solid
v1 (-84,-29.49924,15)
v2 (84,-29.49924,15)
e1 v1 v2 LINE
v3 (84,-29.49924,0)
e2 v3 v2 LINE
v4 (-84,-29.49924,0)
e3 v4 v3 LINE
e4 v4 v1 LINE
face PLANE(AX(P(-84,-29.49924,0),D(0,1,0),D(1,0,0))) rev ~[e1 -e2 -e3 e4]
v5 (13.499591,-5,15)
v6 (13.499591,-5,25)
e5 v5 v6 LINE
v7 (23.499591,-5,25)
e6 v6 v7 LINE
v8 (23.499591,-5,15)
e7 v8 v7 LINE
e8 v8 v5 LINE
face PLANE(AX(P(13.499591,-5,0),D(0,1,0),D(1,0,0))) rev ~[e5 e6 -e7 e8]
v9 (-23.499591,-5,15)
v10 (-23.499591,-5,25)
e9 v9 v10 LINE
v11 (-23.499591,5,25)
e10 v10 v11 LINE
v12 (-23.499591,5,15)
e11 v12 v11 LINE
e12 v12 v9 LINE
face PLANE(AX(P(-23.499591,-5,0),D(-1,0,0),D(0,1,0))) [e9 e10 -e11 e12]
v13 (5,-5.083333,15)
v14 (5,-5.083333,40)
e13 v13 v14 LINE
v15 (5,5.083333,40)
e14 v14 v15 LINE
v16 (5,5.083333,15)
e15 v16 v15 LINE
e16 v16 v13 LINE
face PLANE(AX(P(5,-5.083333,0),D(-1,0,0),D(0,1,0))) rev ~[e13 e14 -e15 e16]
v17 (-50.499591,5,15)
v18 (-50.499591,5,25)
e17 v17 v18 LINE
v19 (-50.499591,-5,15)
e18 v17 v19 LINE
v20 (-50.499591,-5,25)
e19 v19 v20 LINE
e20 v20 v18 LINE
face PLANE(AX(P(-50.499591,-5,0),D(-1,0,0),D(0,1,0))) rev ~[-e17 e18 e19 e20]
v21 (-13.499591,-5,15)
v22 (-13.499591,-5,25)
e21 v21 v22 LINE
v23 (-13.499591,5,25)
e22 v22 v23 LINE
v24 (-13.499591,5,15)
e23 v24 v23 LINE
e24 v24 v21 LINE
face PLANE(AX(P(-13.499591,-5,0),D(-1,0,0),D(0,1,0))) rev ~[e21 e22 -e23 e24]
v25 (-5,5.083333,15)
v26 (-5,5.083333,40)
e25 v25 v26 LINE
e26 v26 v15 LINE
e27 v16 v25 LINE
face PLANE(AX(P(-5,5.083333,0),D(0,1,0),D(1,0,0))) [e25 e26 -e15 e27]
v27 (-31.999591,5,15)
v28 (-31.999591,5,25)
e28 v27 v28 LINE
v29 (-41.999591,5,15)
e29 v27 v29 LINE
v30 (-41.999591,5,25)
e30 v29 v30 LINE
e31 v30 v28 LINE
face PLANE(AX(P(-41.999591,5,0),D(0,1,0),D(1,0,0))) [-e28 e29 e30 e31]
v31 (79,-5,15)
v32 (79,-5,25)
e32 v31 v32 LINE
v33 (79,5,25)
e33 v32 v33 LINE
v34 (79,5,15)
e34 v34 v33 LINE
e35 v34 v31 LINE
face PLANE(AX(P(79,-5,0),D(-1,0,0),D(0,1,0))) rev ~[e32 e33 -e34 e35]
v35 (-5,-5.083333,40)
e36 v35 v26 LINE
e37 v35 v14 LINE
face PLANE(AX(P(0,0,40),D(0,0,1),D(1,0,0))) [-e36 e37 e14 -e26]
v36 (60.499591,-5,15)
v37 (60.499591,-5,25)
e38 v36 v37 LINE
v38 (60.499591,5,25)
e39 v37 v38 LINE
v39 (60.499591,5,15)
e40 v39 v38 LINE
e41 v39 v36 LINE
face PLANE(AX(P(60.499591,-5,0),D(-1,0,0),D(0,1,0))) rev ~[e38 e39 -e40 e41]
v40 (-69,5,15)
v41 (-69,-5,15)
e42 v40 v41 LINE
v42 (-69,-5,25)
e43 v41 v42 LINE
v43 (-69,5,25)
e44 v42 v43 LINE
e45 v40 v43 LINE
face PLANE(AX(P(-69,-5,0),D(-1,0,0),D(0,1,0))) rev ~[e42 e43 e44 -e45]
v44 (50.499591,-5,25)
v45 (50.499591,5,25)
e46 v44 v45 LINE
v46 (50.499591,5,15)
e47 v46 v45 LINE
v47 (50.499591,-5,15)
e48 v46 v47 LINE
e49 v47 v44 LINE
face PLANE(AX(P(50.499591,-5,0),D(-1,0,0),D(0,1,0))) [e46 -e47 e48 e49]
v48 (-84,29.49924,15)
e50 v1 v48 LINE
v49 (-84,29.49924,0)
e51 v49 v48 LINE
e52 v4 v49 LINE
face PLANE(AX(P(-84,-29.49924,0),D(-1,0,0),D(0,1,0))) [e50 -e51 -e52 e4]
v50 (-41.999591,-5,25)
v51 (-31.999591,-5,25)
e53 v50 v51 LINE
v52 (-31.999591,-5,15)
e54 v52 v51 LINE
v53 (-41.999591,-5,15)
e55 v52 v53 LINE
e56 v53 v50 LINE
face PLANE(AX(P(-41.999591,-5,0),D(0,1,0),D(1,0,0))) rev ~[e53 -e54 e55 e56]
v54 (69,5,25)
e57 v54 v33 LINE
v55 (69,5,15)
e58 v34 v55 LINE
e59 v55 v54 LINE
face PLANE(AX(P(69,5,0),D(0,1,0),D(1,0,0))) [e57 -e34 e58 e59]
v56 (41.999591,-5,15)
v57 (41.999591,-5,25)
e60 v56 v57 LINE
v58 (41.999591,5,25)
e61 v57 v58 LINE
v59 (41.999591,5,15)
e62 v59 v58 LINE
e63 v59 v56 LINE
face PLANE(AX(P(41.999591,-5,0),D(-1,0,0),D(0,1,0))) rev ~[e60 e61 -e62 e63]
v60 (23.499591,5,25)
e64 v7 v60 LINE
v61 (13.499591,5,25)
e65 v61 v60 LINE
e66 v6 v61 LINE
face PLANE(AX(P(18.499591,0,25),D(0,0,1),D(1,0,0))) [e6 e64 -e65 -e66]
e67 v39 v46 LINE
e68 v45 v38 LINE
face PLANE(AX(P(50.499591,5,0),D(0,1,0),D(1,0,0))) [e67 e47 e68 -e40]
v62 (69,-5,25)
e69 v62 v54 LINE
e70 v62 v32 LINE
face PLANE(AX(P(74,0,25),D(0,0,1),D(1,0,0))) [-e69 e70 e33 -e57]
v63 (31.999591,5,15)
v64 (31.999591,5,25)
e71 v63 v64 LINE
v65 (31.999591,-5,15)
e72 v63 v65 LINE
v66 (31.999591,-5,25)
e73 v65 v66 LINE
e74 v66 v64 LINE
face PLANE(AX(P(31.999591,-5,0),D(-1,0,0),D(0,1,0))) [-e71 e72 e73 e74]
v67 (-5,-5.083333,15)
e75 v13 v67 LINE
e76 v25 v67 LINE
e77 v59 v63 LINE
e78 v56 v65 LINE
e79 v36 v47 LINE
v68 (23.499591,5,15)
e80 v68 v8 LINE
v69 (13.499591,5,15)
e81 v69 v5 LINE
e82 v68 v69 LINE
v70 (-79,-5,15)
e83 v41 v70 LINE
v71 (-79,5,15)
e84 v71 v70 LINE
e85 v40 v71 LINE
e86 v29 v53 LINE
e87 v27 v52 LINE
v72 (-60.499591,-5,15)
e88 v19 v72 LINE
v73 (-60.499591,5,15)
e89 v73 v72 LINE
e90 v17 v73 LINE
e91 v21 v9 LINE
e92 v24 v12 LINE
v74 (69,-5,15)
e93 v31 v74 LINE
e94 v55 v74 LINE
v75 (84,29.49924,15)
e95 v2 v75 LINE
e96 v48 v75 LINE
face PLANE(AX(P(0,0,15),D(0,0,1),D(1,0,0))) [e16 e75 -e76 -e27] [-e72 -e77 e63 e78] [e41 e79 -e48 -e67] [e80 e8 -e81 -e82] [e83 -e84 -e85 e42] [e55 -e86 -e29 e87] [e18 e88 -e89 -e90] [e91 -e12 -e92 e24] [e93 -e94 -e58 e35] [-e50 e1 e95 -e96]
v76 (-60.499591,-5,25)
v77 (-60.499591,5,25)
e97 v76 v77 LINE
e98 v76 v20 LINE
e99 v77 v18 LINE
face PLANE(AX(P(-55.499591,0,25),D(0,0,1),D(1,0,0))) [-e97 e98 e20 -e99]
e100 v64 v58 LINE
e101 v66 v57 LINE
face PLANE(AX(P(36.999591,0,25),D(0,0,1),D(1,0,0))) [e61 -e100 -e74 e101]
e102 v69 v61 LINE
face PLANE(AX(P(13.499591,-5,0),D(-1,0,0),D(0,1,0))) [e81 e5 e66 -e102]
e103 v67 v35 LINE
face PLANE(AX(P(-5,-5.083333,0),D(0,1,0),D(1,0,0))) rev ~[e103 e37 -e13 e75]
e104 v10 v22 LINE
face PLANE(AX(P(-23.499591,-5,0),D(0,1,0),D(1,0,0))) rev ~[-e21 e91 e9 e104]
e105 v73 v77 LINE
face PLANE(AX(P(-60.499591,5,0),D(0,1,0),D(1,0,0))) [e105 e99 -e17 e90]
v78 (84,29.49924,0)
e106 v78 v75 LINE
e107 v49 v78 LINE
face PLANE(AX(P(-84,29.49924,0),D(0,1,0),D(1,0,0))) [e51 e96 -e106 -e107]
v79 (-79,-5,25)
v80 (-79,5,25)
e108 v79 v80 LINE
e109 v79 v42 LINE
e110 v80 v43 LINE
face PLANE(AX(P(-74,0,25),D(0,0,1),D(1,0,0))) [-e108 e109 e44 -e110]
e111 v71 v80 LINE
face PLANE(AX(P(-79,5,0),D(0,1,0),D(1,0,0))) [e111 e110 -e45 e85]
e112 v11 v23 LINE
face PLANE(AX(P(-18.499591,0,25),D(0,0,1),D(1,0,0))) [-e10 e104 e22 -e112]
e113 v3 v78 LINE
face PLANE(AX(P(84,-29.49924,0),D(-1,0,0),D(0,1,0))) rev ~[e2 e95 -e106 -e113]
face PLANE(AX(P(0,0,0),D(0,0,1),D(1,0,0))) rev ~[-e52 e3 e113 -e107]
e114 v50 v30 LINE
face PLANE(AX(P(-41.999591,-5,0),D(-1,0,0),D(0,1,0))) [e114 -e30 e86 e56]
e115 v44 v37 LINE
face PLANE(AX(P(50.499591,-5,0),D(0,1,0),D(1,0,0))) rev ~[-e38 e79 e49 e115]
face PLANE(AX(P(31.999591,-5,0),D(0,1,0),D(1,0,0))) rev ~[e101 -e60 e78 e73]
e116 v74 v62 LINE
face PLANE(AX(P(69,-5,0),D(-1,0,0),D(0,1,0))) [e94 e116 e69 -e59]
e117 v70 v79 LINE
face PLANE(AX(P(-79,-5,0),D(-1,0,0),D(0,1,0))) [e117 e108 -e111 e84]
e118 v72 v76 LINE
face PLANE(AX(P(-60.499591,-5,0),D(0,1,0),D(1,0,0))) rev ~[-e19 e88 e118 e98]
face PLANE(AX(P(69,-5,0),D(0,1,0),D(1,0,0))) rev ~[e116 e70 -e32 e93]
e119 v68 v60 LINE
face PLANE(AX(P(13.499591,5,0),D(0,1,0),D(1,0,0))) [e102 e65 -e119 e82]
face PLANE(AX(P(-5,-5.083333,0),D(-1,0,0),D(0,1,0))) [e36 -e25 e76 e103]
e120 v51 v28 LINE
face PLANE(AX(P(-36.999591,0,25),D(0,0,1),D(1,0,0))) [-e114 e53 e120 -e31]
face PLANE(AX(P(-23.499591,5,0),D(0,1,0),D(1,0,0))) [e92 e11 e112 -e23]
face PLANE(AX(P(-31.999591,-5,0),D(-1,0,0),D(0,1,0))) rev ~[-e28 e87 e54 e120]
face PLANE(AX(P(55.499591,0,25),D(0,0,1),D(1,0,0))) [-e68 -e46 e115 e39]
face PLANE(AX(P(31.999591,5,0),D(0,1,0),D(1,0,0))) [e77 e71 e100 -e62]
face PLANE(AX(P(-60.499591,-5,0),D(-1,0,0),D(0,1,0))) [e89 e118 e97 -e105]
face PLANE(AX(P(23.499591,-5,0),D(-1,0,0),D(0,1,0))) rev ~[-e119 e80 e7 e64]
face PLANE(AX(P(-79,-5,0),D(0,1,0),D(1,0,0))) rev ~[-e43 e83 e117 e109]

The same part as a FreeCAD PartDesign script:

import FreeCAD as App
import Part
import Sketcher


def add_polygon(sketch, points):
    """Adds a closed chain of lines whose ends are joined by coincident constraints."""
    first, n = sketch.GeometryCount, len(points)
    for a, b in zip(points, points[1:] + points[:1]):
        sketch.addGeometry(Part.LineSegment(App.Vector(*a, 0), App.Vector(*b, 0)), False)
    for i in range(n):
        sketch.addConstraint(Sketcher.Constraint("Coincident", first + i, 2, first + (i + 1) % n, 1))

doc = App.newDocument("Part")
body = doc.addObject("PartDesign::Body", "Body")

# Sketch on XY plane
sketch1 = body.newObject("Sketcher::SketchObject", "Sketch")
sketch1.AttachmentSupport = (doc.getObject("XY_Plane"), [""])
sketch1.MapMode = "FlatFace"
add_polygon(sketch1, [(-84, 29), (-84, -29), (84, -29), (84, 29)])  # lines 0-3
sketch1.addConstraint([
    Sketcher.Constraint("Vertical", 0),
    Sketcher.Constraint("Horizontal", 1),
    Sketcher.Constraint("Vertical", 2),
    Sketcher.Constraint("Horizontal", 3),
    Sketcher.Constraint("Symmetric", 0, 2, 2, 2, -1, 1),
    Sketcher.Constraint("DistanceX", 1, 1, 1, 2, 168.0),
    Sketcher.Constraint("DistanceY", 0, 2, 0, 1, 58.99848),
])
pad1 = body.newObject("PartDesign::Pad", "Pad")
pad1.Profile = sketch1
pad1.Length = 15

# Sketch on XY plane
sketch2 = body.newObject("Sketcher::SketchObject", "Sketch001")
sketch2.AttachmentSupport = (doc.getObject("XY_Plane"), [""])
sketch2.MapMode = "FlatFace"
add_polygon(sketch2, [(-79, 5), (-79, -5), (-69, -5), (-69, 5)])  # lines 0-3
add_polygon(sketch2, [(-60, 5), (-60, -5), (-50, -5), (-50, 5)])  # lines 4-7
add_polygon(sketch2, [(-42, 5), (-42, -5), (-32, -5), (-32, 5)])  # lines 8-11
add_polygon(sketch2, [(-23, 5), (-23, -5), (-13, -5), (-13, 5)])  # lines 12-15
add_polygon(sketch2, [(13, 5), (13, -5), (23, -5), (23, 5)])  # lines 16-19
add_polygon(sketch2, [(32, 5), (32, -5), (42, -5), (42, 5)])  # lines 20-23
add_polygon(sketch2, [(50, 5), (50, -5), (60, -5), (60, 5)])  # lines 24-27
add_polygon(sketch2, [(69, 5), (69, -5), (79, -5), (79, 5)])  # lines 28-31
sketch2.addConstraint([
    Sketcher.Constraint("Vertical", 0),
    Sketcher.Constraint("Horizontal", 1),
    Sketcher.Constraint("Vertical", 2),
    Sketcher.Constraint("Horizontal", 3),
    Sketcher.Constraint("Vertical", 4),
    Sketcher.Constraint("Horizontal", 5),
    Sketcher.Constraint("Vertical", 6),
    Sketcher.Constraint("Horizontal", 7),
    Sketcher.Constraint("Vertical", 8),
    Sketcher.Constraint("Horizontal", 9),
    Sketcher.Constraint("Vertical", 10),
    Sketcher.Constraint("Horizontal", 11),
    Sketcher.Constraint("Vertical", 12),
    Sketcher.Constraint("Horizontal", 13),
    Sketcher.Constraint("Vertical", 14),
    Sketcher.Constraint("Horizontal", 15),
    Sketcher.Constraint("Vertical", 16),
    Sketcher.Constraint("Horizontal", 17),
    Sketcher.Constraint("Vertical", 18),
    Sketcher.Constraint("Horizontal", 19),
    Sketcher.Constraint("Vertical", 20),
    Sketcher.Constraint("Horizontal", 21),
    Sketcher.Constraint("Vertical", 22),
    Sketcher.Constraint("Horizontal", 23),
    Sketcher.Constraint("Vertical", 24),
    Sketcher.Constraint("Horizontal", 25),
    Sketcher.Constraint("Vertical", 26),
    Sketcher.Constraint("Horizontal", 27),
    Sketcher.Constraint("Vertical", 28),
    Sketcher.Constraint("Horizontal", 29),
    Sketcher.Constraint("Vertical", 30),
    Sketcher.Constraint("Horizontal", 31),
    Sketcher.Constraint("Symmetric", 14, 2, 16, 2, -1, 1),
    Sketcher.Constraint("Symmetric", 12, 2, 18, 2, -1, 1),
    Sketcher.Constraint("Symmetric", 10, 2, 20, 2, -1, 1),
    Sketcher.Constraint("Symmetric", 8, 2, 22, 2, -1, 1),
    Sketcher.Constraint("Symmetric", 6, 2, 24, 2, -1, 1),
    Sketcher.Constraint("Symmetric", 4, 2, 26, 2, -1, 1),
    Sketcher.Constraint("Symmetric", 2, 2, 28, 2, -1, 1),
    Sketcher.Constraint("Symmetric", 0, 2, 30, 2, -1, 1),
    Sketcher.Constraint("Horizontal", 1, 2, 4, 2),
    Sketcher.Constraint("Horizontal", 3, 2, 6, 2),
    Sketcher.Constraint("Horizontal", 5, 2, 8, 2),
    Sketcher.Constraint("Horizontal", 7, 2, 10, 2),
    Sketcher.Constraint("Horizontal", 9, 2, 12, 2),
    Sketcher.Constraint("Horizontal", 11, 2, 14, 2),
    Sketcher.Constraint("Horizontal", 13, 2, 16, 2),
    Sketcher.Constraint("Equal", 3, 5),
    Sketcher.Constraint("Equal", 7, 9),
    Sketcher.Constraint("Equal", 11, 13),
    Sketcher.Constraint("Equal", 31, 0),
    Sketcher.Constraint("DistanceX", 1, 1, 1, 2, 10.0),
    Sketcher.Constraint("DistanceX", 0, 2, -1, 1, 79.0),
    Sketcher.Constraint("DistanceX", 5, 2, 12, 2, 27.0),
    Sketcher.Constraint("DistanceX", 5, 2, 8, 2, 8.5),
    Sketcher.Constraint("DistanceX", 4, 2, -1, 1, 60.499591),
])
pad2 = body.newObject("PartDesign::Pad", "Pad001")
pad2.Profile = sketch2
pad2.Length = 25

# Sketch on XY plane
sketch3 = body.newObject("Sketcher::SketchObject", "Sketch002")
sketch3.AttachmentSupport = (doc.getObject("XY_Plane"), [""])
sketch3.MapMode = "FlatFace"
add_polygon(sketch3, [(-5, 5), (-5, -5), (5, -5), (5, 5)])  # lines 0-3
sketch3.addConstraint([
    Sketcher.Constraint("Vertical", 0),
    Sketcher.Constraint("Horizontal", 1),
    Sketcher.Constraint("Vertical", 2),
    Sketcher.Constraint("Horizontal", 3),
    Sketcher.Constraint("Symmetric", 0, 2, 2, 2, -1, 1),
    Sketcher.Constraint("DistanceX", 1, 1, 1, 2, 10.0),
    Sketcher.Constraint("DistanceY", 0, 2, 0, 1, 10.166666),
])
pad3 = body.newObject("PartDesign::Pad", "Pad002")
pad3.Profile = sketch3
pad3.Length = 40

doc.recompute()
